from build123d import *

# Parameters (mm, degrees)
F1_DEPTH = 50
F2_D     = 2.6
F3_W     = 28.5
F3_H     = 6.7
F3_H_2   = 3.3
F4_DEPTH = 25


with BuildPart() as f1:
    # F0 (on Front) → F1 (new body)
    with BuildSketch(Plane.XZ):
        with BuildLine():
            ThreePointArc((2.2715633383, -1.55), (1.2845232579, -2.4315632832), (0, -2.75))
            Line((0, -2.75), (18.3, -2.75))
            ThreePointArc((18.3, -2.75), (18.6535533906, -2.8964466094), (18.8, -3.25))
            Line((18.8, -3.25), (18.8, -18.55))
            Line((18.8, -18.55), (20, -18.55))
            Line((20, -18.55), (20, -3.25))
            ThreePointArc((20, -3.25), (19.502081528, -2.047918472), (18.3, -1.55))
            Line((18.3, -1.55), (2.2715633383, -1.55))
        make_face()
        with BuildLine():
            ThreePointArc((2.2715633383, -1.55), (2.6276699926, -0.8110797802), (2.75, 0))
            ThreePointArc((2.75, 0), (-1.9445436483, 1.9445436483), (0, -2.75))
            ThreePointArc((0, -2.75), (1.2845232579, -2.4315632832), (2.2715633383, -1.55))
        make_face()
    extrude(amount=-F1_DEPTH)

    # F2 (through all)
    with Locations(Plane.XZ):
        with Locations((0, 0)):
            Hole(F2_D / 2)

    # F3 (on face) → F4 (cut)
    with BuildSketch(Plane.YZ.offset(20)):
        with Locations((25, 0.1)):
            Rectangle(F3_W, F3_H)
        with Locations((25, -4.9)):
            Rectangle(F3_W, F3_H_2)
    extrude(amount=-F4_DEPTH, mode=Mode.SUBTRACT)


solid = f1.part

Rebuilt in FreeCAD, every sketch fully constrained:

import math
import FreeCAD as App
import Part
import Sketcher

V = App.Vector


def add_polygon(sketch, points):
    """Adds a closed chain of lines whose ends are joined by coincident constraints."""
    first, n = sketch.GeometryCount, len(points)
    for a, b in zip(points, points[1:] + points[:1]):
        sketch.addGeometry(Part.LineSegment(App.Vector(*a, 0), App.Vector(*b, 0)), False)
    for i in range(n):
        sketch.addConstraint(Sketcher.Constraint("Coincident", first + i, 2, first + (i + 1) % n, 1))

doc = App.newDocument("Part")
params = doc.addObject("Spreadsheet::Sheet", "Params")
for row, (alias, value) in enumerate([
    ("sketch1_radius", "0.5 mm"),
    ("sketch1_radius2", "1.7 mm"),
    ("sketch1_radius3", "2.75 mm"),
    ("sketch1_width", "18.3 mm"),
    ("sketch1_height", "15.3 mm"),
    ("pad1_length", "50 mm"),
    ("sketch2_diameter", "2.6 mm"),
    ("hole_diameter", "2.6 mm"),
    ("sketch3_height", "10 mm"),
    ("sketch3_width", "28.5 mm"),
    ("pocket1_length", "25 mm"),
], start=1):
    params.set(f"A{row}", alias)
    params.set(f"B{row}", "=" + value)
    params.setAlias(f"B{row}", alias)

body = doc.addObject("PartDesign::Body", "Body")

# Sketch on XZ plane
sketch1 = doc.addObject("Sketcher::SketchObject", "Sketch")
body.addObject(sketch1)
sketch1.AttachmentSupport = (doc.XZ_Plane, [""])
sketch1.MapMode = "FlatFace"
sketch1.addGeometry([
    Part.LineSegment(V(0, -2.8, 0), V(18.3, -2.8, 0)),  # 0
    Part.ArcOfCircle(Part.Circle(V(18.3, -3.2, 0), V(0, 0, 1), 0.5), math.radians(0), math.radians(90)),  # 1
    Part.LineSegment(V(18.8, -3.2, 0), V(18.8, -18.6, 0)),  # 2
    Part.LineSegment(V(18.8, -18.6, 0), V(20, -18.6, 0)),  # 3
    Part.LineSegment(V(20, -18.6, 0), V(20, -3.2, 0)),  # 4
    Part.ArcOfCircle(Part.Circle(V(18.3, -3.2, 0), V(0, 0, 1), 1.7), math.radians(0), math.radians(90)),  # 5
    Part.LineSegment(V(18.3, -1.6, 0), V(2.3, -1.6, 0)),  # 6
    Part.ArcOfCircle(Part.Circle(V(0, 0, 0), V(0, 0, 1), 2.8), math.radians(-34), math.radians(0)),  # 7
    Part.ArcOfCircle(Part.Circle(V(0, 0, 0), V(0, 0, 1), 2.8), math.radians(0), math.radians(270)),  # 8
], False)
sketch1.addConstraint([
    Sketcher.Constraint("Tangent", 0, 2, 1, 2),
    Sketcher.Constraint("Tangent", 1, 1, 2, 1),
    Sketcher.Constraint("Coincident", 2, 2, 3, 1),
    Sketcher.Constraint("Coincident", 3, 2, 4, 1),
    Sketcher.Constraint("Tangent", 4, 2, 5, 1),
    Sketcher.Constraint("Tangent", 5, 2, 6, 1),
    Sketcher.Constraint("Coincident", 6, 2, 7, 1),
    Sketcher.Constraint("Tangent", 7, 2, 8, 1),
    Sketcher.Constraint("Tangent", 8, 2, 0, 1),
    Sketcher.Constraint("Horizontal", 0),
    Sketcher.Constraint("Vertical", 2),
    Sketcher.Constraint("Horizontal", 3),
    Sketcher.Constraint("Vertical", 4),
    Sketcher.Constraint("Horizontal", 6),
    Sketcher.Constraint("Coincident", 7, 3, -1, 1),
    Sketcher.Constraint("Coincident", 5, 3, 1, 3),
    Sketcher.Constraint("Equal", 7, 8),
    Sketcher.Constraint("PointOnObject", 7, 2, -1),
    Sketcher.Constraint("Radius", 1, 0.5),
    Sketcher.Constraint("Radius", 5, 1.7),
    Sketcher.Constraint("Radius", 7, 2.75),
    Sketcher.Constraint("DistanceX", 0, 1, 0, 2, 18.3),
    Sketcher.Constraint("DistanceY", 2, 2, 2, 1, 15.3),
])
sketch1.setExpression("Constraints[18]", "Params.sketch1_radius")
sketch1.setExpression("Constraints[19]", "Params.sketch1_radius2")
sketch1.setExpression("Constraints[20]", "Params.sketch1_radius3")
sketch1.setExpression("Constraints[21]", "Params.sketch1_width")
sketch1.setExpression("Constraints[22]", "Params.sketch1_height")
pad1 = doc.addObject("PartDesign::Pad", "Pad")
body.addObject(pad1)
pad1.Profile = sketch1
pad1.setExpression("Length", "Params.pad1_length")
pad1.Reversed = True

# Sketch on XZ plane
sketch2 = doc.addObject("Sketcher::SketchObject", "Sketch001")
body.addObject(sketch2)
sketch2.AttachmentSupport = (doc.XZ_Plane, [""])
sketch2.MapMode = "FlatFace"
sketch2.addGeometry(Part.Circle(V(0, 0, 0), V(0, 0, 1), 1.3), False)
sketch2.addConstraint([
    Sketcher.Constraint("Coincident", 0, 3, -1, 1),
    Sketcher.Constraint("Diameter", 0, 2.6),
])
sketch2.setExpression("Constraints[1]", "Params.sketch2_diameter")
doc.recompute()
hole = doc.addObject("PartDesign::Hole", "Hole")
body.addObject(hole)
hole.Profile = sketch2
hole.ThreadType = "None"
hole.setExpression("Diameter", "Params.hole_diameter")
hole.DepthType = "ThroughAll"

# Sketch on YZ plane
sketch3 = doc.addObject("Sketcher::SketchObject", "Sketch002")
body.addObject(sketch3)
sketch3.AttachmentSupport = (doc.YZ_Plane, [""])
sketch3.MapMode = "FlatFace"
sketch3.AttachmentOffset = App.Placement(V(0, 0, 20), App.Rotation())
add_polygon(sketch3, [(11, 3), (11, -7), (39, -7), (39, 3)])  # lines 0-3
sketch3.addConstraint([
    Sketcher.Constraint("Vertical", 0),
    Sketcher.Constraint("Horizontal", 1),
    Sketcher.Constraint("Vertical", 2),
    Sketcher.Constraint("Horizontal", 3),
    Sketcher.Constraint("DistanceY", 0, 2, 0, 1, 10.0),
    Sketcher.Constraint("DistanceX", 1, 1, 1, 2, 28.5),
    Sketcher.Constraint("DistanceX", -1, 1, 0, 2, 10.75),
    Sketcher.Constraint("DistanceY", 0, 2, -1, 1, 6.55),
])
sketch3.setExpression("Constraints[8]", "Params.sketch3_height")
sketch3.setExpression("Constraints[9]", "Params.sketch3_width")
pocket1 = doc.addObject("PartDesign::Pocket", "Pocket")
body.addObject(pocket1)
pocket1.Profile = sketch3
pocket1.setExpression("Length", "Params.pocket1_length")

doc.recompute()
